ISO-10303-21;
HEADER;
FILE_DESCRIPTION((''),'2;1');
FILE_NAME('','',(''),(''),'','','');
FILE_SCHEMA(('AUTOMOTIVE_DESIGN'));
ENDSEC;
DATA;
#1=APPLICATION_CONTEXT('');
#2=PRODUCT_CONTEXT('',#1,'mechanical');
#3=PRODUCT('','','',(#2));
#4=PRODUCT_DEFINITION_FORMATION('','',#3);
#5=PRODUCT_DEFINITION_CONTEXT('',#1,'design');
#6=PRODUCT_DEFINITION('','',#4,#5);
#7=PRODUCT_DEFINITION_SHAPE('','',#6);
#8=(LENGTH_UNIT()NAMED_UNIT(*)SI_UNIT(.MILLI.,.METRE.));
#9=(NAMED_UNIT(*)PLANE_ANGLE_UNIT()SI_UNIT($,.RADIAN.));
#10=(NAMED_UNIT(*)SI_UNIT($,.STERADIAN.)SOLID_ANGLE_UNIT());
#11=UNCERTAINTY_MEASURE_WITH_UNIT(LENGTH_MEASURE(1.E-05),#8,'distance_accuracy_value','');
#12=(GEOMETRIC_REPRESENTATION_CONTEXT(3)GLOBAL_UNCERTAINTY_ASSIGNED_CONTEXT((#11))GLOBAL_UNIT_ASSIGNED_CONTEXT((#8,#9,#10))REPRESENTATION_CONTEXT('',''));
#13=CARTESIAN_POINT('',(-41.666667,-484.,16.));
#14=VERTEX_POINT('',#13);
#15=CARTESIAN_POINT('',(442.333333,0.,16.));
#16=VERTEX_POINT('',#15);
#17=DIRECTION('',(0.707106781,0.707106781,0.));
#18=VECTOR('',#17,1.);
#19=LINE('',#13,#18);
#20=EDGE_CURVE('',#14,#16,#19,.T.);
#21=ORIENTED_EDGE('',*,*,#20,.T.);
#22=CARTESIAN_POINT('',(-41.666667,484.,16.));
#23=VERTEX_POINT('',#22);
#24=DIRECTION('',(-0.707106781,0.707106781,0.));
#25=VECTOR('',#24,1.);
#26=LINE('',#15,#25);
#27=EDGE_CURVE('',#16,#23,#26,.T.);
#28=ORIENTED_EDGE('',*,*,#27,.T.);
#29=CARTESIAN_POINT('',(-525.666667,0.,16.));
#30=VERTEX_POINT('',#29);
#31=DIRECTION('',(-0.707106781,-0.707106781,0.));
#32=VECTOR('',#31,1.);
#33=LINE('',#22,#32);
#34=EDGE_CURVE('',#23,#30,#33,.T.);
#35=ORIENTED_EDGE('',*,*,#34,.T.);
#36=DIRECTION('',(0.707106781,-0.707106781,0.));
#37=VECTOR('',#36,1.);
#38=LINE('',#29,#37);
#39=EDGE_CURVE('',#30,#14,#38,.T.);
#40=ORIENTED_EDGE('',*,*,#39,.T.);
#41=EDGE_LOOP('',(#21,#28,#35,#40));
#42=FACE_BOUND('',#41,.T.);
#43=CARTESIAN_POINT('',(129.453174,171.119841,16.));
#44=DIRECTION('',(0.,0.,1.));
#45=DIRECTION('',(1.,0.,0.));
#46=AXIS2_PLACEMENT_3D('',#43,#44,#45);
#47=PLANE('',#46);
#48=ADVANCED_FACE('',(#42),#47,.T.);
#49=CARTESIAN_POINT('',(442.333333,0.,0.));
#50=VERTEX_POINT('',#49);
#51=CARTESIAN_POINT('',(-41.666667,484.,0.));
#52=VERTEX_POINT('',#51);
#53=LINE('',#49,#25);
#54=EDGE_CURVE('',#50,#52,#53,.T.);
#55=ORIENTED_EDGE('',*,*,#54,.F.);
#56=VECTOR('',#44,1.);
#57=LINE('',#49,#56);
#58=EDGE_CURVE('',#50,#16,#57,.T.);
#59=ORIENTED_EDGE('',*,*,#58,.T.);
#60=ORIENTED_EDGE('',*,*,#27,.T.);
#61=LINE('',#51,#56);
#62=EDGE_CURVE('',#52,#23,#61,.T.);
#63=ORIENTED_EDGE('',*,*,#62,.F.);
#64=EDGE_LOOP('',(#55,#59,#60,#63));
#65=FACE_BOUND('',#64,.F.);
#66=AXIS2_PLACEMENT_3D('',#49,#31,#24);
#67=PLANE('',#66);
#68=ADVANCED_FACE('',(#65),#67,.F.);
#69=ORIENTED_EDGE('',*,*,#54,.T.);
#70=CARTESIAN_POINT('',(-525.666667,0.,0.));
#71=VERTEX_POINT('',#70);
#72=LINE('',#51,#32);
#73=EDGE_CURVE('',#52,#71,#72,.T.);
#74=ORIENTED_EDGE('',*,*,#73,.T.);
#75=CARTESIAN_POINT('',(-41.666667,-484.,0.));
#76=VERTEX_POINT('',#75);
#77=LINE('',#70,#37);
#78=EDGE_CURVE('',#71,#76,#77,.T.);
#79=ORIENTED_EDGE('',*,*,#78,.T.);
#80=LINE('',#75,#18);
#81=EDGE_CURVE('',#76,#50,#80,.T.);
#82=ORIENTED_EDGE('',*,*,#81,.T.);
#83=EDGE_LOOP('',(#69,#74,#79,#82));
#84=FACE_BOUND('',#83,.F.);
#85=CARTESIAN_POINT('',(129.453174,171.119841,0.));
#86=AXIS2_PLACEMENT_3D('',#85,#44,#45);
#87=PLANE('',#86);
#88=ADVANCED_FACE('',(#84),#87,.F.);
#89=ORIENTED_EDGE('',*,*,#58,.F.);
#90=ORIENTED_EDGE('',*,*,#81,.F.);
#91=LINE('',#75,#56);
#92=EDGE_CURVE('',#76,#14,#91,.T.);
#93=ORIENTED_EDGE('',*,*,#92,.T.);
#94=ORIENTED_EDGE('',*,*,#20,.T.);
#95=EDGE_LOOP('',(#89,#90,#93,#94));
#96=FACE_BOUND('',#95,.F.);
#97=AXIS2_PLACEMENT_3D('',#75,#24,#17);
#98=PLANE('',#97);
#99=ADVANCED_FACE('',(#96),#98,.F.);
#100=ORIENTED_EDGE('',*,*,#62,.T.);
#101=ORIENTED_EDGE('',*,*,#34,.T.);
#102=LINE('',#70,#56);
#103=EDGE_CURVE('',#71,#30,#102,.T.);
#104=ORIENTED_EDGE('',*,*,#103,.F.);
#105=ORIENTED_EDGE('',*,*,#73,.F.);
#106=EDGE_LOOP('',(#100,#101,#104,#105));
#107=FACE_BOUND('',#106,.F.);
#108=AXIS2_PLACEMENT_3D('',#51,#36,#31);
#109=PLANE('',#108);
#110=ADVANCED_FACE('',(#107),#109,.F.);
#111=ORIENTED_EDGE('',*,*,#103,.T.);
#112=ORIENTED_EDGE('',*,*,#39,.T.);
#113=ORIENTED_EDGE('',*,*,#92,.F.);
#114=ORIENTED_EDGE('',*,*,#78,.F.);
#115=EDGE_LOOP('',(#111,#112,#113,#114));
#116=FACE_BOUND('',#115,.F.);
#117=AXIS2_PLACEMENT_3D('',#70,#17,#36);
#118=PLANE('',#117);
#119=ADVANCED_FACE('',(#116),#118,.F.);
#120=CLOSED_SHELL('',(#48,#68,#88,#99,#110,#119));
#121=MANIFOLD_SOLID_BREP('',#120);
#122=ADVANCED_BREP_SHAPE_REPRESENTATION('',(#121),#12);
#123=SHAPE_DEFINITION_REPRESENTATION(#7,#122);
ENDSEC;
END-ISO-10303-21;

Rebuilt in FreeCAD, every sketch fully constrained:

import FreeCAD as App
import Part
import Sketcher


def add_polygon(sketch, points):
    """Adds a closed chain of lines whose ends are joined by coincident constraints."""
    first, n = sketch.GeometryCount, len(points)
    for a, b in zip(points, points[1:] + points[:1]):
        sketch.addGeometry(Part.LineSegment(App.Vector(*a, 0), App.Vector(*b, 0)), False)
    for i in range(n):
        sketch.addConstraint(Sketcher.Constraint("Coincident", first + i, 2, first + (i + 1) % n, 1))

doc = App.newDocument("Part")
body = doc.addObject("PartDesign::Body", "Body")

sketch1 = body.newObject("Sketcher::SketchObject", "Sketch")
sketch1.AttachmentSupport = (doc.getObject("XY_Plane"), [""])
sketch1.MapMode = "FlatFace"
add_polygon(sketch1, [(442.333333, 0), (-41.666667, 484), (-525.666667, 0), (-41.666667, -484)])
sketch1.addConstraint(Sketcher.Constraint("Symmetric", 0, 2, 2, 2, -1))
sketch1.addConstraint(Sketcher.Constraint("PointOnObject", 1, 2, -1))
sketch1.addConstraint(Sketcher.Constraint("PointOnObject", 3, 2, -1))
sketch1.addConstraint(Sketcher.Constraint("Perpendicular", 0, 1))
sketch1.addConstraint(Sketcher.Constraint("Perpendicular", 1, 2))
sketch1.addConstraint(Sketcher.Constraint("DistanceY", -1, 1, 0, 2, 484.0))
sketch1.addConstraint(Sketcher.Constraint("DistanceX", 0, 2, -1, 1, 41.666667))
pad1 = body.newObject("PartDesign::Pad", "Pad")
pad1.Profile = sketch1
pad1.Length = 16

doc.recompute()
